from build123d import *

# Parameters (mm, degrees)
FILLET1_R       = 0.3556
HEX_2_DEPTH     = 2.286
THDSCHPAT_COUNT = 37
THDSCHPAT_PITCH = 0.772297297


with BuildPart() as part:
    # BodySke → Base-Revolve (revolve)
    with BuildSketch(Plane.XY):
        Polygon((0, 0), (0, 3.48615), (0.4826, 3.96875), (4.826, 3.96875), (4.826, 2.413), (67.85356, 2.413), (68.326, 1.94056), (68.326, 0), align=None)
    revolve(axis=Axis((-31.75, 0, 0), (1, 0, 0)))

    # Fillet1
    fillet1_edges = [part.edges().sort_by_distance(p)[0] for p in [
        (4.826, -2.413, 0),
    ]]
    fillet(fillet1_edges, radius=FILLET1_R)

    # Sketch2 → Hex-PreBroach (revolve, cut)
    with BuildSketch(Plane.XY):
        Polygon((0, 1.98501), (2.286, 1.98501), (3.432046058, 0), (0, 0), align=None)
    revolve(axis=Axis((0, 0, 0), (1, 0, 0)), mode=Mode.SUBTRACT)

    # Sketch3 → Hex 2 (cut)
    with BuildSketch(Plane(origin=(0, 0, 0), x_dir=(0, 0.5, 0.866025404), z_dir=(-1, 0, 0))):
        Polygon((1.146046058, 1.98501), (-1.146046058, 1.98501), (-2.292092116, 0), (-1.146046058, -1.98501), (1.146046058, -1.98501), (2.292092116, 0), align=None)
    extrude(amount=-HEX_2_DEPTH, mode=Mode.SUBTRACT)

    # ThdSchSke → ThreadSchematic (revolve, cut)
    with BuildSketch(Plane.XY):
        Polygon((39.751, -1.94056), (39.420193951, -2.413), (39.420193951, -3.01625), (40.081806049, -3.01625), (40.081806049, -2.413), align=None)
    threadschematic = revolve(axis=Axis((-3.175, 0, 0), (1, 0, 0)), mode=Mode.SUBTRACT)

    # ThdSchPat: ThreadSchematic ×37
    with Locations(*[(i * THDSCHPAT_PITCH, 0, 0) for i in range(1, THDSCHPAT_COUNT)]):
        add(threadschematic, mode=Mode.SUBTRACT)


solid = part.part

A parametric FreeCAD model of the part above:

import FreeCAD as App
import Part
import Sketcher
Q = App.Units.Quantity


def edges_at(feature, points):
    """Names of the edges that pass closest to the given points."""
    edges = feature.Shape.Edges
    near = lambda p: min(range(len(edges)), key=lambda i: edges[i].distToShape(Part.Vertex(*p))[0])
    return sorted({f"Edge{near(p) + 1}" for p in points})

doc = App.newDocument("Part")
body = doc.addObject("PartDesign::Body", "Body")

# Sketch on XY plane
sketch1 = body.newObject("Sketcher::SketchObject", "Sketch")
sketch1.AttachmentSupport = (doc.getObject("XY_Plane"), [""])
sketch1.MapMode = "FlatFace"
sketch1.addGeometry([
    Part.LineSegment(App.Vector(0, 3.5, 0), App.Vector(0, 0, 0)),  # 0
    Part.LineSegment(App.Vector(0, 0, 0), App.Vector(68.3, 0, 0)),  # 1
    Part.LineSegment(App.Vector(68.3, 0, 0), App.Vector(68.3, 1.9, 0)),  # 2
    Part.LineSegment(App.Vector(68.3, 1.9, 0), App.Vector(67.9, 2.4, 0)),  # 3
    Part.LineSegment(App.Vector(67.9, 2.4, 0), App.Vector(4.8, 2.4, 0)),  # 4
    Part.LineSegment(App.Vector(4.8, 2.4, 0), App.Vector(4.8, 4, 0)),  # 5
    Part.LineSegment(App.Vector(4.8, 4, 0), App.Vector(0.5, 4, 0)),  # 6
    Part.LineSegment(App.Vector(0.5, 4, 0), App.Vector(0, 3.5, 0)),  # 7
], False)
sketch1.addConstraint([
    Sketcher.Constraint("Coincident", 0, 2, 1, 1),
    Sketcher.Constraint("Coincident", 1, 2, 2, 1),
    Sketcher.Constraint("Coincident", 2, 2, 3, 1),
    Sketcher.Constraint("Coincident", 3, 2, 4, 1),
    Sketcher.Constraint("Coincident", 4, 2, 5, 1),
    Sketcher.Constraint("Coincident", 5, 2, 6, 1),
    Sketcher.Constraint("Coincident", 6, 2, 7, 1),
    Sketcher.Constraint("Coincident", 7, 2, 0, 1),
    Sketcher.Constraint("Vertical", 0),
    Sketcher.Constraint("Horizontal", 1),
    Sketcher.Constraint("Vertical", 2),
    Sketcher.Constraint("Horizontal", 4),
    Sketcher.Constraint("Vertical", 5),
    Sketcher.Constraint("Horizontal", 6),
    Sketcher.Constraint("Coincident", 0, 2, -1, 1),
    Sketcher.Constraint("Perpendicular", 3, 7),
    Sketcher.Constraint("Angle", 3, Q("135 deg")),
    Sketcher.Constraint("DistanceX", 1, 1, 1, 2, Q("2.69 in")),
    Sketcher.Constraint("DistanceX", 4, 2, 2, 2, Q("2.5 in")),
    Sketcher.Constraint("DistanceX", 6, 2, 6, 1, Q("0.171 in")),
    Sketcher.Constraint("DistanceX", 4, 2, 4, 1, Q("2.4814 in")),
    Sketcher.Constraint("DistanceY", 2, 1, 2, 2, Q("0.0764 in")),
    Sketcher.Constraint("DistanceY", -1, 1, 5, 2, Q("0.15625 in")),
])
revolution = body.newObject("PartDesign::Revolution", "Revolution")
revolution.Profile = sketch1
revolution.ReferenceAxis = (sketch1, ["H_Axis"])
revolution.Angle = 360
doc.recompute()

fillet = body.newObject("PartDesign::Fillet", "Fillet")
fillet.Base = (revolution, edges_at(revolution, [(4.826, -2.413, 0)]))
fillet.Radius = Q("0.014 in")

# Sketch on XY plane
sketch2 = body.newObject("Sketcher::SketchObject", "Sketch001")
sketch2.AttachmentSupport = (doc.getObject("XY_Plane"), [""])
sketch2.MapMode = "FlatFace"
sketch2.addGeometry([
    Part.LineSegment(App.Vector(2.3, 2, 0), App.Vector(0, 2, 0)),
    Part.LineSegment(App.Vector(0, 2, 0), App.Vector(0, 0, 0)),
    Part.LineSegment(App.Vector(0, 0, 0), App.Vector(3.4, 0, 0)),
    Part.LineSegment(App.Vector(3.4, 0, 0), App.Vector(2.3, 2, 0)),
], False)
sketch2.addConstraint([
    Sketcher.Constraint("Coincident", 0, 2, 1, 1),
    Sketcher.Constraint("Coincident", 1, 2, 2, 1),
    Sketcher.Constraint("Coincident", 2, 2, 3, 1),
    Sketcher.Constraint("Coincident", 3, 2, 0, 1),
    Sketcher.Constraint("Horizontal", 0),
    Sketcher.Constraint("Vertical", 1),
    Sketcher.Constraint("Horizontal", 2),
    Sketcher.Constraint("Coincident", 1, 2, -1, 1),
    Sketcher.Constraint("Angle", 3, Q("120 deg")),
    Sketcher.Constraint("DistanceX", 0, 2, 0, 1, Q("0.09 in")),
    Sketcher.Constraint("DistanceY", 1, 2, 1, 1, Q("1.98501 mm")),
])
groove = body.newObject("PartDesign::Groove", "Groove")
groove.Profile = sketch2
groove.ReferenceAxis = (sketch2, ["H_Axis"])
groove.Angle = 360

# Sketch on YZ plane
sketch3 = body.newObject("Sketcher::SketchObject", "Sketch002")
sketch3.AttachmentSupport = (doc.getObject("YZ_Plane"), [""])
sketch3.MapMode = "FlatFace"
sketch3.addGeometry([
    Part.LineSegment(App.Vector(2.3, 0, 0), App.Vector(1.1, -2, 0)),  # 0
    Part.LineSegment(App.Vector(1.1, -2, 0), App.Vector(-1.1, -2, 0)),  # 1
    Part.LineSegment(App.Vector(-1.1, -2, 0), App.Vector(-2.3, 0, 0)),  # 2
    Part.LineSegment(App.Vector(-2.3, 0, 0), App.Vector(-1.1, 2, 0)),  # 3
    Part.LineSegment(App.Vector(-1.1, 2, 0), App.Vector(1.1, 2, 0)),  # 4
    Part.LineSegment(App.Vector(1.1, 2, 0), App.Vector(2.3, 0, 0)),  # 5
], False)
sketch3.addConstraint([
    Sketcher.Constraint("Coincident", 0, 2, 1, 1),
    Sketcher.Constraint("Coincident", 1, 2, 2, 1),
    Sketcher.Constraint("Coincident", 2, 2, 3, 1),
    Sketcher.Constraint("Coincident", 3, 2, 4, 1),
    Sketcher.Constraint("Coincident", 4, 2, 5, 1),
    Sketcher.Constraint("Coincident", 5, 2, 0, 1),
    Sketcher.Constraint("Horizontal", 1),
    Sketcher.Constraint("Horizontal", 4),
    Sketcher.Constraint("Symmetric", 0, 2, 3, 2, -1, 1),
    Sketcher.Constraint("Symmetric", 2, 2, 5, 2, -1, 1),
    Sketcher.Constraint("PointOnObject", 2, 2, -1),
    Sketcher.Constraint("Parallel", 2, 5),
    Sketcher.Constraint("Vertical", 1, 2, 3, 2),
    Sketcher.Constraint("Angle", 0, Q("-120 deg")),
    Sketcher.Constraint("DistanceY", 1, 2, 3, 2, Q("0.1563 in")),
    Sketcher.Constraint("DistanceX", 1, 2, 1, 1, Q("2.292092 mm")),
])
pocket1 = body.newObject("PartDesign::Pocket", "Pocket")
pocket1.Profile = sketch3
pocket1.Length = Q("0.09 in")
pocket1.Reversed = True

# Sketch on XY plane
sketch4 = body.newObject("Sketcher::SketchObject", "Sketch003")
sketch4.AttachmentSupport = (doc.getObject("XY_Plane"), [""])
sketch4.MapMode = "FlatFace"
sketch4.addGeometry([
    Part.LineSegment(App.Vector(39.8, -1.9, 0), App.Vector(39.4, -2.4, 0)),  # 0
    Part.LineSegment(App.Vector(39.4, -2.4, 0), App.Vector(39.4, -3, 0)),  # 1
    Part.LineSegment(App.Vector(39.4, -3, 0), App.Vector(40.1, -3, 0)),  # 2
    Part.LineSegment(App.Vector(40.1, -3, 0), App.Vector(40.1, -2.4, 0)),  # 3
    Part.LineSegment(App.Vector(40.1, -2.4, 0), App.Vector(39.8, -1.9, 0)),  # 4
], False)
sketch4.addConstraint([
    Sketcher.Constraint("Coincident", 0, 2, 1, 1),
    Sketcher.Constraint("Coincident", 1, 2, 2, 1),
    Sketcher.Constraint("Coincident", 2, 2, 3, 1),
    Sketcher.Constraint("Coincident", 3, 2, 4, 1),
    Sketcher.Constraint("Coincident", 4, 2, 0, 1),
    Sketcher.Constraint("Vertical", 1),
    Sketcher.Constraint("Horizontal", 2),
    Sketcher.Constraint("Vertical", 3),
    Sketcher.Constraint("Horizontal", 0, 2, 3, 2),
    Sketcher.Constraint("Equal", 0, 4),
    Sketcher.Constraint("Angle", 0, Q("-125 deg")),
    Sketcher.Constraint("DistanceY", 0, 2, -1, 1, Q("0.095 in")),
    Sketcher.Constraint("DistanceX", -1, 1, 4, 2, Q("1.565 in")),
    Sketcher.Constraint("DistanceY", 4, 2, -1, 1, Q("0.0764 in")),
    Sketcher.Constraint("DistanceY", 1, 2, 1, 1, Q("0.60325 mm")),
])
groove2 = body.newObject("PartDesign::Groove", "Groove001")
groove2.Profile = sketch4
groove2.ReferenceAxis = (sketch4, ["H_Axis"])
groove2.Angle = 360
doc.recompute()

linearpattern = body.newObject("PartDesign::LinearPattern", "LinearPattern")
linearpattern.Originals = [groove2]
linearpattern.Direction = (doc.getObject("X_Axis"), [""])
linearpattern.Mode = "offset"
linearpattern.Offset = 0.772297
linearpattern.Occurrences = 37
body.Tip = linearpattern

doc.recompute()
